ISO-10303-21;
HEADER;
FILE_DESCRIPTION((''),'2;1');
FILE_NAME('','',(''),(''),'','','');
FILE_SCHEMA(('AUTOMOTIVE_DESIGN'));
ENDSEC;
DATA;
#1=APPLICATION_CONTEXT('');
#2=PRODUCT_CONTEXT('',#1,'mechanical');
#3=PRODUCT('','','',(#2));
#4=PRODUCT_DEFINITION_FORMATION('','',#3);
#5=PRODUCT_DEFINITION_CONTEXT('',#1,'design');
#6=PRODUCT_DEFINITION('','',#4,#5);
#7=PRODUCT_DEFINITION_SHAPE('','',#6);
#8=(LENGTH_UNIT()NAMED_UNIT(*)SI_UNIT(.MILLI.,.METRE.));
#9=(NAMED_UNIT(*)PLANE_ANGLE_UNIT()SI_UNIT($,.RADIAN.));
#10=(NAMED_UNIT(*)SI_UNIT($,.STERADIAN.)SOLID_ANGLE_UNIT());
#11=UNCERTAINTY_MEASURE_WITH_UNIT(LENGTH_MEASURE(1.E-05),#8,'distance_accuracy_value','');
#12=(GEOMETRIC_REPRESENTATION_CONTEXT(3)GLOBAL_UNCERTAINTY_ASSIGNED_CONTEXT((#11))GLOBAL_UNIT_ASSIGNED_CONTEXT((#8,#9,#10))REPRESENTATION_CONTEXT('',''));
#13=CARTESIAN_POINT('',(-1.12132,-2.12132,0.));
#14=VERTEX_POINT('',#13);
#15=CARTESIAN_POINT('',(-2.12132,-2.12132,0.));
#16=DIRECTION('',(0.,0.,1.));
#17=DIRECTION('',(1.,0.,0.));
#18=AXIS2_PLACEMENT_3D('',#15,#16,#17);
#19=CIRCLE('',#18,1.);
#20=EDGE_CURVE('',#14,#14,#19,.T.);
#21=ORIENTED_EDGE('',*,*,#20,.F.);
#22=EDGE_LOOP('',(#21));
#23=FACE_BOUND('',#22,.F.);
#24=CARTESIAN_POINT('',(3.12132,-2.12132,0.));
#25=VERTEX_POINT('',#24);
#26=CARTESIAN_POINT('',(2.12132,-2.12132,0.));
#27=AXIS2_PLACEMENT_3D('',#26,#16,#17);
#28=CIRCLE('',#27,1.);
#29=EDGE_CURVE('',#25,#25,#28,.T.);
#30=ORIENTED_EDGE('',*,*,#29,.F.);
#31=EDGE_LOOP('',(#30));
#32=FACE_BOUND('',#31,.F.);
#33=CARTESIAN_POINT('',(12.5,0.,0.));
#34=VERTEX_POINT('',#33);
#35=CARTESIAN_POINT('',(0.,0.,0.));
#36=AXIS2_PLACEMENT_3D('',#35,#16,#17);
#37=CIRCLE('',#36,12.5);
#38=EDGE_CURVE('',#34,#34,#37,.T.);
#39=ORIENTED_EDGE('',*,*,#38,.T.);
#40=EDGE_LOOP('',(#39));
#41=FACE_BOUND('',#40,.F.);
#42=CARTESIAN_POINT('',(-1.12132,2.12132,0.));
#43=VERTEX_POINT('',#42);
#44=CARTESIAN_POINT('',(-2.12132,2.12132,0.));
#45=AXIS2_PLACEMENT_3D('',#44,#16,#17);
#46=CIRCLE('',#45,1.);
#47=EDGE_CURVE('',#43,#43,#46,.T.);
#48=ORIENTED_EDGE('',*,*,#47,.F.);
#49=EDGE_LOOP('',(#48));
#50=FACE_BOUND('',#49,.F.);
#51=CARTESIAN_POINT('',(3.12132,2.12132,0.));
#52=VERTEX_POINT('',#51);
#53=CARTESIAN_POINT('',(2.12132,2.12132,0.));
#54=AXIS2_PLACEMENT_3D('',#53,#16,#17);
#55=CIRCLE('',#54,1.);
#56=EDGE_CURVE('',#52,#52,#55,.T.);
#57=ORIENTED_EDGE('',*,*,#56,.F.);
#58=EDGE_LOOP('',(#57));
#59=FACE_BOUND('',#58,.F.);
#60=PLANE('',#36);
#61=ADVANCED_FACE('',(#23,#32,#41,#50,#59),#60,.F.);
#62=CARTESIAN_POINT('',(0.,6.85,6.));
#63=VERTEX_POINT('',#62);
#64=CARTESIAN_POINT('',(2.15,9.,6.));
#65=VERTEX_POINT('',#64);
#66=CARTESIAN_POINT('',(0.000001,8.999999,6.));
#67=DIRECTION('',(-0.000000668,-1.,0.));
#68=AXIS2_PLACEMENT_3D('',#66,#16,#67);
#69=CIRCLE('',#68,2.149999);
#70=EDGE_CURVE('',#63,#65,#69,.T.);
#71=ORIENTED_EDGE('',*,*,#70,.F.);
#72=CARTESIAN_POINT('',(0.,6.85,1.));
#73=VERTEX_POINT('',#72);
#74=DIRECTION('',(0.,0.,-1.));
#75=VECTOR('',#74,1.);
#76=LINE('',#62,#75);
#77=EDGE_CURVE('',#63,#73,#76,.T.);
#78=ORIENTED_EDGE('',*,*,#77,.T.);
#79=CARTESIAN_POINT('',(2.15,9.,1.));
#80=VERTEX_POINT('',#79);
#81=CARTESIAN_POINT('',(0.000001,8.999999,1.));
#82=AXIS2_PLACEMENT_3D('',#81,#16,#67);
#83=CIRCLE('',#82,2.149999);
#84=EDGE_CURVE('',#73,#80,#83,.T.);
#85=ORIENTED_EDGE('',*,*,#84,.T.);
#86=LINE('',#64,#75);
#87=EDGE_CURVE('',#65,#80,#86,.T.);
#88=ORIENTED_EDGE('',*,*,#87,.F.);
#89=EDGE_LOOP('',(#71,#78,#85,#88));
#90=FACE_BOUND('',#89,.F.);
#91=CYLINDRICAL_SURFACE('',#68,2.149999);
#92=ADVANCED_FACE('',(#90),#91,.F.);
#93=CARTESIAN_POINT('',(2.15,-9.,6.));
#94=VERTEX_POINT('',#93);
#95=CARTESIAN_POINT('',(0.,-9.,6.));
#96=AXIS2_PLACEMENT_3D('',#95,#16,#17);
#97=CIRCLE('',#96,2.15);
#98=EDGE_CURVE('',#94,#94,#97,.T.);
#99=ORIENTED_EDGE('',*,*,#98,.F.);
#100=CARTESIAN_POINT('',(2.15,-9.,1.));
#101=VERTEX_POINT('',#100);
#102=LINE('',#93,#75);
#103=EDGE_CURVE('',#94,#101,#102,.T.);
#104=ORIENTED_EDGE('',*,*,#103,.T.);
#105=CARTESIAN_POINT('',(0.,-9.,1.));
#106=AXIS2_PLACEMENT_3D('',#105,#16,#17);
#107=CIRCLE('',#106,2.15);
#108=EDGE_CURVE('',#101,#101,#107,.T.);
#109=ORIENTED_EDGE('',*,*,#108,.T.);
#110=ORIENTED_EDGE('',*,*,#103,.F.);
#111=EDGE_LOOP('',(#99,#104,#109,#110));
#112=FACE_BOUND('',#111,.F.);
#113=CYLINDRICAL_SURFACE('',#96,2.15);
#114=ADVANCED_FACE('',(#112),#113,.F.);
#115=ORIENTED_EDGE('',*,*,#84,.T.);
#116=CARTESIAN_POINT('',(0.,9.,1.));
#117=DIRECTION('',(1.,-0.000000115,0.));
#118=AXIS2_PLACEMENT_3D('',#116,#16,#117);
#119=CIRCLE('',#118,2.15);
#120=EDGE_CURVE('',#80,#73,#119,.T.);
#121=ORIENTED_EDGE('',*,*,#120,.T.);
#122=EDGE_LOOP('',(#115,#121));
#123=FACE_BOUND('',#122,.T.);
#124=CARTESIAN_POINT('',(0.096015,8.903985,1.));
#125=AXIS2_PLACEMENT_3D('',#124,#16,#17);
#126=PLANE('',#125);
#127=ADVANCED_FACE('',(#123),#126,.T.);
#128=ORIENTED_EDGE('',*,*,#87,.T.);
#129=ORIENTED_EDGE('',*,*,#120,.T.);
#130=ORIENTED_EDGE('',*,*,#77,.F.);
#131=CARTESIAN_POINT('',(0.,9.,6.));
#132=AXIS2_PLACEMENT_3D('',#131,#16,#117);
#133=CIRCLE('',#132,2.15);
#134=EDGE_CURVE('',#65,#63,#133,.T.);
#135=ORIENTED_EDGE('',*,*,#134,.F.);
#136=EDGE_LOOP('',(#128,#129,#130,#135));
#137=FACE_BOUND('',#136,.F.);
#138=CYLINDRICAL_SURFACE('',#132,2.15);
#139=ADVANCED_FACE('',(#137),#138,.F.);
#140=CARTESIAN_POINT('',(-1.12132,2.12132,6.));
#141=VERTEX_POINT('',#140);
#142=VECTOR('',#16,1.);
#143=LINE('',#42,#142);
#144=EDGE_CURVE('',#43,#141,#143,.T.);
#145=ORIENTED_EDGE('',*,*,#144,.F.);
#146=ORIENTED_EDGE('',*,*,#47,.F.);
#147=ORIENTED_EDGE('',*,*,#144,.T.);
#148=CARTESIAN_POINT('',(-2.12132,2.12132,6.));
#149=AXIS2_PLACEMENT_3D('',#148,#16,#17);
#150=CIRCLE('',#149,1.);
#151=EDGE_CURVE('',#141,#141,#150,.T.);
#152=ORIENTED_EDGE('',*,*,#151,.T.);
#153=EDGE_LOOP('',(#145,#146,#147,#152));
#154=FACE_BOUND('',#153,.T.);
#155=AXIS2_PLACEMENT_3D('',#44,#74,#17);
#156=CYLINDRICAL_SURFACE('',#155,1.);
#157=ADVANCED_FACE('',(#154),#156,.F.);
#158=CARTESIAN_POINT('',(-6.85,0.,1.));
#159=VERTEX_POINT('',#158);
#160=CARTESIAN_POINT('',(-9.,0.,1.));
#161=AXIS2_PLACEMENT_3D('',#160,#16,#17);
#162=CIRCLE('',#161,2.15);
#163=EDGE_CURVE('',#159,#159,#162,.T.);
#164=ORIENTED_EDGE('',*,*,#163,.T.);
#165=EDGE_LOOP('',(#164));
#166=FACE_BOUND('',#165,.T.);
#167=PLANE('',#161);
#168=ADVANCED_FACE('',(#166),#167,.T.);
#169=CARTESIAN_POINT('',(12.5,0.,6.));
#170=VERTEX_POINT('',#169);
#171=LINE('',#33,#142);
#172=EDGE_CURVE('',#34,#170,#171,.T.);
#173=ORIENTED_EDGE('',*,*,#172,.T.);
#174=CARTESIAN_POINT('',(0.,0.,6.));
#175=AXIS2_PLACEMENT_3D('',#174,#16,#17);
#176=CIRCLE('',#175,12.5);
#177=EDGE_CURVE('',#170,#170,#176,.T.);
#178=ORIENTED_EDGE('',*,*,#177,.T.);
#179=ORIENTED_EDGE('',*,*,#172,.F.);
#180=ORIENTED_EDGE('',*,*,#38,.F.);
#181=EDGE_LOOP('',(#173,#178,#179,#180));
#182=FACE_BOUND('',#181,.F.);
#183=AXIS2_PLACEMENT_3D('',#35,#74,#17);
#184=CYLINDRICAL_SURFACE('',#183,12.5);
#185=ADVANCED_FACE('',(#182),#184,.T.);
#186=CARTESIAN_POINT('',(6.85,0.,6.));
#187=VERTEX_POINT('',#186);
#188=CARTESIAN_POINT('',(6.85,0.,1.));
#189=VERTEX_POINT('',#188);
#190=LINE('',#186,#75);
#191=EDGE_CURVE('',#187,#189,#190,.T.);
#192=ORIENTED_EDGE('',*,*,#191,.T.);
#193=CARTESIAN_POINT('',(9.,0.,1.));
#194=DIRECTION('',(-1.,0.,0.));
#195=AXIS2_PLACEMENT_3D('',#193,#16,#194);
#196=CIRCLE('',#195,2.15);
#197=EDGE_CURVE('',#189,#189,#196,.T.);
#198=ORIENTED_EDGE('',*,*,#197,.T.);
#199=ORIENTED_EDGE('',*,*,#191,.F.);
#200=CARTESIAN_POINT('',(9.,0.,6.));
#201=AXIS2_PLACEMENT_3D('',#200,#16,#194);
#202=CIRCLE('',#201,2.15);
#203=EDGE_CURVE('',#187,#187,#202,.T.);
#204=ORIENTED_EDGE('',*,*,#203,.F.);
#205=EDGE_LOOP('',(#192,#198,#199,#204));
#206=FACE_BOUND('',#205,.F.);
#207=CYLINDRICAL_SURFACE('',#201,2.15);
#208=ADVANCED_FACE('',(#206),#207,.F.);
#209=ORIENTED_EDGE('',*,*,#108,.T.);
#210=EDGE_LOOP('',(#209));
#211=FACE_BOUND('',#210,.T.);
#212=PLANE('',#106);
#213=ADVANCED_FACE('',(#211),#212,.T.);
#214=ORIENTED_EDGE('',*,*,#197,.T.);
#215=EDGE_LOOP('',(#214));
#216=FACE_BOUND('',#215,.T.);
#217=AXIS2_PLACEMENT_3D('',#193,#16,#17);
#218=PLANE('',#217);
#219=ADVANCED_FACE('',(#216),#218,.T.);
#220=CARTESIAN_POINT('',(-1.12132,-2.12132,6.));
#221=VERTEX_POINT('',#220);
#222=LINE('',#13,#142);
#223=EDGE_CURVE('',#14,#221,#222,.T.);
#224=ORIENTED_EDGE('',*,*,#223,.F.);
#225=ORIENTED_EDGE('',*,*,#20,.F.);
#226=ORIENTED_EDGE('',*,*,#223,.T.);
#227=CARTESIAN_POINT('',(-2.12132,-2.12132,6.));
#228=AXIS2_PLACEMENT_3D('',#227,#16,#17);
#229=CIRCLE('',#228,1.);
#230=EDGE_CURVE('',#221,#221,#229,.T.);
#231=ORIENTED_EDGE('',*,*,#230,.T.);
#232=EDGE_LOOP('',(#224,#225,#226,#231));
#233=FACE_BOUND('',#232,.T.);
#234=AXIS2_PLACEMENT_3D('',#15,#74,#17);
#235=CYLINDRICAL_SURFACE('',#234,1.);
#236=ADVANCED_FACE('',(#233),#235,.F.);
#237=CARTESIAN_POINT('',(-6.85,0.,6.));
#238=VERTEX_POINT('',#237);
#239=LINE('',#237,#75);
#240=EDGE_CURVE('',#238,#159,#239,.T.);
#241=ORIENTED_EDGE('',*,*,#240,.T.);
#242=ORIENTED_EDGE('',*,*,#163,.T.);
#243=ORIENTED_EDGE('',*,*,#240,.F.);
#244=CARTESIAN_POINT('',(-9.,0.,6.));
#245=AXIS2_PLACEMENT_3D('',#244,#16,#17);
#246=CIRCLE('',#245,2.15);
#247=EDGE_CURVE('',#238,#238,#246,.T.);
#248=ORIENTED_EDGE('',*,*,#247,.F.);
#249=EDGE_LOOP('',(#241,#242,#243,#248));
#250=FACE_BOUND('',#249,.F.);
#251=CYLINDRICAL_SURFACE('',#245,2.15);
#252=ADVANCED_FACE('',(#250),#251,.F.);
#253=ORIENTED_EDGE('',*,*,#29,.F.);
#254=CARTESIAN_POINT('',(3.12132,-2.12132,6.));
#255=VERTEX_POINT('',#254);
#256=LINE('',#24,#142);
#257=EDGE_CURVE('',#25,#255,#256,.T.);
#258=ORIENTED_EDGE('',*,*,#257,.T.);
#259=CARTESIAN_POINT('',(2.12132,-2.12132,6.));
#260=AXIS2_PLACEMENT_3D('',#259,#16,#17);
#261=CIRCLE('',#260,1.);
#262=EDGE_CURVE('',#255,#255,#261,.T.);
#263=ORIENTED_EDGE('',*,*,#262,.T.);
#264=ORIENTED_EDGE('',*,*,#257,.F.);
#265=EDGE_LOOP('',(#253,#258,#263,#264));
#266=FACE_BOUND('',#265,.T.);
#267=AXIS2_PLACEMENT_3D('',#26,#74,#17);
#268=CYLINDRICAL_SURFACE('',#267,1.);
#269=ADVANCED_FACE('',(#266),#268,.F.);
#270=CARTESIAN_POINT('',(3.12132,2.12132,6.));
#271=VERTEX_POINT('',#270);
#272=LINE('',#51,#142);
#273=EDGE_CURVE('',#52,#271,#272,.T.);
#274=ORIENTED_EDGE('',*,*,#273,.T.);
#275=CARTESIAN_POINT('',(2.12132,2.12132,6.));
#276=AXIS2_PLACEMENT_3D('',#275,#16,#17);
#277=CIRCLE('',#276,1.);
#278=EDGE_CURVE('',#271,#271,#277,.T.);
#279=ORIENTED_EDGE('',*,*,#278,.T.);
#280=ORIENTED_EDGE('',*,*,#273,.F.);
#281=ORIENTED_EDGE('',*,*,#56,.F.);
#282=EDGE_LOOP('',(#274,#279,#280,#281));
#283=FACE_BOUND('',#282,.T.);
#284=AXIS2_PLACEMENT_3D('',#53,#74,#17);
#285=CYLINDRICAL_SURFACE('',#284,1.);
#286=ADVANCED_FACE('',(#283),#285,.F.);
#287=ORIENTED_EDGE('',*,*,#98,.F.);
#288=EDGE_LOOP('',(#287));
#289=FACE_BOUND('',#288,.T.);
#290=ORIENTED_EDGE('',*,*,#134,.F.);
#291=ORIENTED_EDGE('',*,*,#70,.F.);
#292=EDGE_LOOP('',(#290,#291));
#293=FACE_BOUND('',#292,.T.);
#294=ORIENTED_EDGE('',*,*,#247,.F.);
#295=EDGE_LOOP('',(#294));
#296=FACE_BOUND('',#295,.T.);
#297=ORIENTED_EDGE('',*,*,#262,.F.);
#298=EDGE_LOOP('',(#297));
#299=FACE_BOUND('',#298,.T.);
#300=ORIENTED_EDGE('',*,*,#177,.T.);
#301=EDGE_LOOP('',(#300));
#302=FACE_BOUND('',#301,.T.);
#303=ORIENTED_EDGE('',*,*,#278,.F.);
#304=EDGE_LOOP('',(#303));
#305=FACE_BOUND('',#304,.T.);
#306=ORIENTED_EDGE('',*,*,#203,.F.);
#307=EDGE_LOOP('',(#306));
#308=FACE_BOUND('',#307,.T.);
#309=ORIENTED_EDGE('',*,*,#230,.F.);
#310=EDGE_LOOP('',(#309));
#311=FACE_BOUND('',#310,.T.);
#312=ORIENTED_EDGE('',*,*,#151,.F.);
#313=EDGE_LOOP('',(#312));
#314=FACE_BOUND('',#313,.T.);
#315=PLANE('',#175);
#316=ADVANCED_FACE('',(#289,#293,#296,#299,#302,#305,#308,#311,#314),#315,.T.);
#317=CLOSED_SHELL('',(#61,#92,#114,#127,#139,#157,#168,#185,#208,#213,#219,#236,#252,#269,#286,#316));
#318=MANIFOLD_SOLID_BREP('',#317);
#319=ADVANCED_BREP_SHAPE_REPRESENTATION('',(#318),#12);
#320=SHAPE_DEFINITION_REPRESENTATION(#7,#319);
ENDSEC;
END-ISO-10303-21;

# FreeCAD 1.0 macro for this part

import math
import FreeCAD as App
import Part
import Sketcher
from FreeCAD import Vector

doc = App.newDocument("Part")
body = doc.addObject("PartDesign::Body", "Body")

# Sketch on XY plane
sketch1 = body.newObject("Sketcher::SketchObject", "Sketch")
sketch1.AttachmentSupport = (doc.getObject("XY_Plane"), [""])
sketch1.MapMode = "FlatFace"
sketch1.addGeometry(Part.Circle(Vector(0, 0, 0), Vector(0, 0, 1), 12.5), False)
sketch1.addGeometry(Part.Circle(Vector(-2.1, -2.1, 0), Vector(0, 0, 1), 1), False)
sketch1.addGeometry(Part.Circle(Vector(2.1, -2.1, 0), Vector(0, 0, 1), 1), False)
sketch1.addGeometry(Part.Circle(Vector(-2.1, 2.1, 0), Vector(0, 0, 1), 1), False)
sketch1.addGeometry(Part.Circle(Vector(2.1, 2.1, 0), Vector(0, 0, 1), 1), False)
sketch1.addConstraint(Sketcher.Constraint("Coincident", 0, 3, -1, 1))
sketch1.addConstraint(Sketcher.Constraint("Equal", 1, 2))
sketch1.addConstraint(Sketcher.Constraint("Equal", 2, 3))
sketch1.addConstraint(Sketcher.Constraint("Equal", 3, 4))
sketch1.addConstraint(Sketcher.Constraint("Symmetric", 2, 3, 3, 3, -1, 1))
sketch1.addConstraint(Sketcher.Constraint("Symmetric", 1, 3, 4, 3, -1, 1))
sketch1.addConstraint(Sketcher.Constraint("Symmetric", 1, 3, 2, 3, -2))
sketch1.addConstraint(Sketcher.Constraint("Diameter", 0, 25.0))
sketch1.addConstraint(Sketcher.Constraint("Diameter", 1, 2.0))
sketch1.addConstraint(Sketcher.Constraint("DistanceX", 1, 3, -1, 1, 2.12132))
sketch1.addConstraint(Sketcher.Constraint("DistanceY", 1, 3, -1, 1, 2.12132))
pad1 = body.newObject("PartDesign::Pad", "Pad")
pad1.Profile = sketch1
pad1.Length = 6

# Sketch on XY plane
sketch2 = body.newObject("Sketcher::SketchObject", "Sketch001")
sketch2.AttachmentSupport = (doc.getObject("XY_Plane"), [""])
sketch2.MapMode = "FlatFace"
sketch2.AttachmentOffset = App.Placement(Vector(0, 0, 6), App.Rotation())
sketch2.addGeometry(Part.Circle(Vector(9, 0, 0), Vector(0, 0, 1), 2.1), False)
sketch2.addGeometry(Part.ArcOfCircle(Part.Circle(Vector(0, 9, 0), Vector(0, 0, 1), 2.2), math.radians(0), math.radians(270)), False)
sketch2.addGeometry(Part.ArcOfCircle(Part.Circle(Vector(0, 9, 0), Vector(0, 0, 1), 2.1), math.radians(-90), math.radians(0)), False)
sketch2.addGeometry(Part.Circle(Vector(0, -9, 0), Vector(0, 0, 1), 2.1), False)
sketch2.addGeometry(Part.Circle(Vector(-9, 0, 0), Vector(0, 0, 1), 2.1), False)
sketch2.addConstraint(Sketcher.Constraint("Tangent", 1, 1, 2, 2))
sketch2.addConstraint(Sketcher.Constraint("Coincident", 2, 1, 1, 2))
sketch2.addConstraint(Sketcher.Constraint("Equal", 0, 1))
sketch2.addConstraint(Sketcher.Constraint("Equal", 2, 3))
sketch2.addConstraint(Sketcher.Constraint("Equal", 3, 4))
sketch2.addConstraint(Sketcher.Constraint("Symmetric", 1, 3, 3, 3, -1, 1))
sketch2.addConstraint(Sketcher.Constraint("Symmetric", 0, 3, 4, 3, -1, 1))
sketch2.addConstraint(Sketcher.Constraint("PointOnObject", 0, 3, -1))
sketch2.addConstraint(Sketcher.Constraint("PointOnObject", 1, 3, -2))
sketch2.addConstraint(Sketcher.Constraint("PointOnObject", 2, 1, -2))
sketch2.addConstraint(Sketcher.Constraint("Horizontal", 2, 3, 1, 1))
sketch2.addConstraint(Sketcher.Constraint("Diameter", 0, 4.3))
sketch2.addConstraint(Sketcher.Constraint("DistanceX", -1, 1, 0, 3, 9.0))
sketch2.addConstraint(Sketcher.Constraint("DistanceY", -1, 1, 1, 3, 9.0))
pocket1 = body.newObject("PartDesign::Pocket", "Pocket")
pocket1.Profile = sketch2
pocket1.Length = 5

doc.recompute()
